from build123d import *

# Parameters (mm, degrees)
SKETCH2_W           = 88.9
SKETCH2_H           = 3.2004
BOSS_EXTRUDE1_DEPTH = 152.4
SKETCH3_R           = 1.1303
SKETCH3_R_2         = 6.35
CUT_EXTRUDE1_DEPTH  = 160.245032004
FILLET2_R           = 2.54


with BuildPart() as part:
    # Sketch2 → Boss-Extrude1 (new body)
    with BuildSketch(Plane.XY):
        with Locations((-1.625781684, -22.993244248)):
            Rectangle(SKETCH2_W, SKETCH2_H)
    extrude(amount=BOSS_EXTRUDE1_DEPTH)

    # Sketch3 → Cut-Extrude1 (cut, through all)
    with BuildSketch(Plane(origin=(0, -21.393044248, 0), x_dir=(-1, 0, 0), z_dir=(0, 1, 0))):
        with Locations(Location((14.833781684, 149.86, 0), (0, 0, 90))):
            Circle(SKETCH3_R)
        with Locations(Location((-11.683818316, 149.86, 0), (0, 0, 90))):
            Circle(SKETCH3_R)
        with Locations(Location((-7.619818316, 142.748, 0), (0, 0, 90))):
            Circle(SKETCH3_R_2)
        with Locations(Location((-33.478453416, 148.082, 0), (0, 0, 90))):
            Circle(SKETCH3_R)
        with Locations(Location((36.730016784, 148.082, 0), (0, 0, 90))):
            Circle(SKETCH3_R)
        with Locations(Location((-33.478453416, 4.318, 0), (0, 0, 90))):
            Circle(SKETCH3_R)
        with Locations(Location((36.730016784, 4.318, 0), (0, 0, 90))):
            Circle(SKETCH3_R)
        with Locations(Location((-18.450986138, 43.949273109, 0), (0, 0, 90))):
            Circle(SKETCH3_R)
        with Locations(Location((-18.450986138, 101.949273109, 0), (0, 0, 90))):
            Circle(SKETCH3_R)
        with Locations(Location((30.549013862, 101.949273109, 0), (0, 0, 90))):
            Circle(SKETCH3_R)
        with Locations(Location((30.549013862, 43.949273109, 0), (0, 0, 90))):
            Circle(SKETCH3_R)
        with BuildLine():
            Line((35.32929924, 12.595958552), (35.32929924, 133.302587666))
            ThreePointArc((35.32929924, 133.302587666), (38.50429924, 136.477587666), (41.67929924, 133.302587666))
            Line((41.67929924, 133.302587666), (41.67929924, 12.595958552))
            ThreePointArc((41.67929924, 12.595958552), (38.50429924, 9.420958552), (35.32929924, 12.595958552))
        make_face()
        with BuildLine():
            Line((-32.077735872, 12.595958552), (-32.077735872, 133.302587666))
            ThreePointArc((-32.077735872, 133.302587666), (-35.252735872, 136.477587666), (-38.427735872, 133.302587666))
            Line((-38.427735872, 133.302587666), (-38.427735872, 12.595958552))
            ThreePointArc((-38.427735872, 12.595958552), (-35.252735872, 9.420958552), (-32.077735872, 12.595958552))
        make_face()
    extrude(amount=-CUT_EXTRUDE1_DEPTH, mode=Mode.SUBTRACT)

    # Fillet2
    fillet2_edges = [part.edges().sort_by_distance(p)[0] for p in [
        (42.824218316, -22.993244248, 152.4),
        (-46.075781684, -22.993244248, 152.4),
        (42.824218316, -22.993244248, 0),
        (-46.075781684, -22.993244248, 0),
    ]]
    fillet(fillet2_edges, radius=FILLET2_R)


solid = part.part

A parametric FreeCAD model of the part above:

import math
import FreeCAD as App
import Part
import Sketcher
Q = App.Units.Quantity


def edges_at(feature, points):
    """Names of the edges that pass closest to the given points."""
    edges = feature.Shape.Edges
    near = lambda p: min(range(len(edges)), key=lambda i: edges[i].distToShape(Part.Vertex(*p))[0])
    return sorted({f"Edge{near(p) + 1}" for p in points})

doc = App.newDocument("Part")
params = doc.addObject("Spreadsheet::Sheet", "Params")
for row, (alias, value) in enumerate([
    ("sketch1_width", "3.5 in"),
    ("sketch1_height", "0.126 in"),
    ("pad1_length", "6 in"),
    ("sketch2_diameter", "0.5 in"),
    ("sketch2_diameter2", "0.089 in"),
    ("sketch2_radius", "0.125 in"),
    ("fillet_radius", "0.1 in"),
], start=1):
    params.set(f"A{row}", alias)
    params.set(f"B{row}", "=" + value)
    params.setAlias(f"B{row}", alias)

body = doc.addObject("PartDesign::Body", "Body")

# Sketch on XY plane
sketch1 = doc.addObject("Sketcher::SketchObject", "Sketch")
body.addObject(sketch1)
sketch1.AttachmentSupport = (doc.XY_Plane, [""])
sketch1.MapMode = "FlatFace"
sketch1.addGeometry([
    Part.LineSegment(App.Vector(-46.1, -21.4, 0), App.Vector(-46.1, -24.6, 0)),
    Part.LineSegment(App.Vector(-46.1, -24.6, 0), App.Vector(42.8, -24.6, 0)),
    Part.LineSegment(App.Vector(42.8, -24.6, 0), App.Vector(42.8, -21.4, 0)),
    Part.LineSegment(App.Vector(42.8, -21.4, 0), App.Vector(-46.1, -21.4, 0)),
], False)
sketch1.addConstraint([
    Sketcher.Constraint("Coincident", 0, 2, 1, 1),
    Sketcher.Constraint("Coincident", 1, 2, 2, 1),
    Sketcher.Constraint("Coincident", 2, 2, 3, 1),
    Sketcher.Constraint("Coincident", 3, 2, 0, 1),
    Sketcher.Constraint("Vertical", 0),
    Sketcher.Constraint("Horizontal", 1),
    Sketcher.Constraint("Vertical", 2),
    Sketcher.Constraint("Horizontal", 3),
    Sketcher.Constraint("DistanceX", 1, 1, 1, 2, Q("3.5 in")),
    Sketcher.Constraint("DistanceY", 0, 2, 0, 1, Q("0.126 in")),
    Sketcher.Constraint("DistanceX", 0, 2, -1, 1, 46.075782),
    Sketcher.Constraint("DistanceY", 0, 2, -1, 1, 24.593444),
])
sketch1.setExpression("Constraints[8]", "Params.sketch1_width")
sketch1.setExpression("Constraints[9]", "Params.sketch1_height")
pad1 = doc.addObject("PartDesign::Pad", "Pad")
body.addObject(pad1)
pad1.Profile = sketch1
pad1.setExpression("Length", "Params.pad1_length")

# Sketch on XZ plane
sketch2 = doc.addObject("Sketcher::SketchObject", "Sketch001")
body.addObject(sketch2)
sketch2.AttachmentSupport = (doc.XZ_Plane, [""])
sketch2.MapMode = "FlatFace"
sketch2.AttachmentOffset = App.Placement(App.Vector(0, 0, 21.393044), App.Rotation())
sketch2.addGeometry([
    Part.Circle(App.Vector(-14.8, 149.9, 0), App.Vector(0, 0, 1), 1.1),  # 0
    Part.Circle(App.Vector(11.7, 149.9, 0), App.Vector(0, 0, 1), 1.1),  # 1
    Part.Circle(App.Vector(7.6, 142.7, 0), App.Vector(0, 0, 1), 6.3),  # 2
    Part.Circle(App.Vector(33.5, 148.1, 0), App.Vector(0, 0, 1), 1.1),  # 3
    Part.Circle(App.Vector(-36.7, 148.1, 0), App.Vector(0, 0, 1), 1.1),  # 4
    Part.Circle(App.Vector(33.5, 4.3, 0), App.Vector(0, 0, 1), 1.1),  # 5
    Part.Circle(App.Vector(-36.7, 4.3, 0), App.Vector(0, 0, 1), 1.1),  # 6
    Part.Circle(App.Vector(18.5, 43.9, 0), App.Vector(0, 0, 1), 1.1),  # 7
    Part.Circle(App.Vector(18.5, 101.9, 0), App.Vector(0, 0, 1), 1.1),  # 8
    Part.Circle(App.Vector(-30.5, 101.9, 0), App.Vector(0, 0, 1), 1.1),  # 9
    Part.Circle(App.Vector(-30.5, 43.9, 0), App.Vector(0, 0, 1), 1.1),  # 10
    Part.LineSegment(App.Vector(-35.3, 133.3, 0), App.Vector(-35.3, 12.6, 0)),  # 11
    Part.ArcOfCircle(Part.Circle(App.Vector(-38.5, 12.6, 0), App.Vector(0, 0, 1), 3.2), math.radians(180), math.radians(360)),  # 12
    Part.LineSegment(App.Vector(-41.7, 12.6, 0), App.Vector(-41.7, 133.3, 0)),  # 13
    Part.ArcOfCircle(Part.Circle(App.Vector(-38.5, 133.3, 0), App.Vector(0, 0, 1), 3.2), math.radians(0), math.radians(180)),  # 14
    Part.LineSegment(App.Vector(32.1, 12.6, 0), App.Vector(32.1, 133.3, 0)),  # 15
    Part.ArcOfCircle(Part.Circle(App.Vector(35.3, 133.3, 0), App.Vector(0, 0, 1), 3.2), math.radians(0), math.radians(180)),  # 16
    Part.LineSegment(App.Vector(38.4, 133.3, 0), App.Vector(38.4, 12.6, 0)),  # 17
    Part.ArcOfCircle(Part.Circle(App.Vector(35.3, 12.6, 0), App.Vector(0, 0, 1), 3.2), math.radians(180), math.radians(360)),  # 18
], False)
sketch2.addConstraint([
    Sketcher.Constraint("Tangent", 11, 2, 12, 2),
    Sketcher.Constraint("Tangent", 12, 1, 13, 1),
    Sketcher.Constraint("Tangent", 13, 2, 14, 2),
    Sketcher.Constraint("Tangent", 14, 1, 11, 1),
    Sketcher.Constraint("Tangent", 15, 2, 16, 2),
    Sketcher.Constraint("Tangent", 16, 1, 17, 1),
    Sketcher.Constraint("Tangent", 17, 2, 18, 2),
    Sketcher.Constraint("Tangent", 18, 1, 15, 1),
    Sketcher.Constraint("Vertical", 11),
    Sketcher.Constraint("Vertical", 13),
    Sketcher.Constraint("Vertical", 15),
    Sketcher.Constraint("Vertical", 17),
    Sketcher.Constraint("Equal", 0, 1),
    Sketcher.Constraint("Equal", 1, 3),
    Sketcher.Constraint("Equal", 3, 4),
    Sketcher.Constraint("Equal", 4, 5),
    Sketcher.Constraint("Equal", 5, 6),
    Sketcher.Constraint("Equal", 6, 7),
    Sketcher.Constraint("Equal", 7, 8),
    Sketcher.Constraint("Equal", 8, 9),
    Sketcher.Constraint("Equal", 9, 10),
    Sketcher.Constraint("Equal", 14, 16),
    Sketcher.Constraint("Horizontal", 0, 3, 1, 3),
    Sketcher.Constraint("Horizontal", 3, 3, 4, 3),
    Sketcher.Constraint("Horizontal", 5, 3, 6, 3),
    Sketcher.Constraint("Horizontal", 8, 3, 9, 3),
    Sketcher.Constraint("Horizontal", 7, 3, 10, 3),
    Sketcher.Constraint("Horizontal", 14, 3, 16, 3),
    Sketcher.Constraint("Horizontal", 12, 3, 18, 3),
    Sketcher.Constraint("Vertical", 3, 3, 5, 3),
    Sketcher.Constraint("Vertical", 4, 3, 6, 3),
    Sketcher.Constraint("Vertical", 7, 3, 8, 3),
    Sketcher.Constraint("Vertical", 9, 3, 10, 3),
    Sketcher.Constraint("Diameter", 2, Q("0.5 in")),
    Sketcher.Constraint("Diameter", 0, Q("0.089 in")),
    Sketcher.Constraint("Radius", 12, Q("0.125 in")),
    Sketcher.Constraint("DistanceY", -1, 1, 0, 3, Q("5.9 in")),
    Sketcher.Constraint("DistanceY", -1, 1, 2, 3, Q("5.62 in")),
    Sketcher.Constraint("DistanceY", -1, 1, 3, 3, Q("5.83 in")),
    Sketcher.Constraint("DistanceY", -1, 1, 5, 3, Q("0.17 in")),
    Sketcher.Constraint("DistanceX", 2, 3, 1, 3, Q("0.16 in")),
    Sketcher.Constraint("DistanceX", 0, 3, 1, 3, Q("1.044 in")),
    Sketcher.Constraint("DistanceY", 11, 2, 11, 1, 120.706629),
    Sketcher.Constraint("DistanceX", 12, 3, -1, 1, 38.504299),
    Sketcher.Constraint("DistanceY", 7, 3, 8, 3, 58.0),
    Sketcher.Constraint("DistanceX", 9, 3, 8, 3, 49.0),
    Sketcher.Constraint("DistanceX", 0, 3, -1, 1, 14.833782),
    Sketcher.Constraint("DistanceY", -1, 1, 12, 3, 12.595959),
    Sketcher.Constraint("DistanceX", 4, 3, 3, 3, 70.20847),
    Sketcher.Constraint("DistanceX", 8, 3, 16, 3, 16.80175),
    Sketcher.Constraint("DistanceX", -1, 1, 3, 3, 33.478453),
    Sketcher.Constraint("DistanceX", -1, 1, 7, 3, 18.450986),
    Sketcher.Constraint("DistanceY", -1, 1, 7, 3, 43.949273),
])
sketch2.setExpression("Constraints[33]", "Params.sketch2_diameter")
sketch2.setExpression("Constraints[34]", "Params.sketch2_diameter2")
sketch2.setExpression("Constraints[35]", "Params.sketch2_radius")
pocket1 = doc.addObject("PartDesign::Pocket", "Pocket")
body.addObject(pocket1)
pocket1.Profile = sketch2
pocket1.Type = "ThroughAll"
pocket1.Reversed = True
doc.recompute()

fillet = doc.addObject("PartDesign::Fillet", "Fillet")
body.addObject(fillet)
fillet.Base = (pocket1, edges_at(pocket1, [
    (42.824, -22.993, 152.4),
    (-46.076, -22.993, 152.4),
    (42.824, -22.993, 0),
    (-46.076, -22.993, 0),
]))
fillet.setExpression("Radius", "Params.fillet_radius")

doc.recompute()
